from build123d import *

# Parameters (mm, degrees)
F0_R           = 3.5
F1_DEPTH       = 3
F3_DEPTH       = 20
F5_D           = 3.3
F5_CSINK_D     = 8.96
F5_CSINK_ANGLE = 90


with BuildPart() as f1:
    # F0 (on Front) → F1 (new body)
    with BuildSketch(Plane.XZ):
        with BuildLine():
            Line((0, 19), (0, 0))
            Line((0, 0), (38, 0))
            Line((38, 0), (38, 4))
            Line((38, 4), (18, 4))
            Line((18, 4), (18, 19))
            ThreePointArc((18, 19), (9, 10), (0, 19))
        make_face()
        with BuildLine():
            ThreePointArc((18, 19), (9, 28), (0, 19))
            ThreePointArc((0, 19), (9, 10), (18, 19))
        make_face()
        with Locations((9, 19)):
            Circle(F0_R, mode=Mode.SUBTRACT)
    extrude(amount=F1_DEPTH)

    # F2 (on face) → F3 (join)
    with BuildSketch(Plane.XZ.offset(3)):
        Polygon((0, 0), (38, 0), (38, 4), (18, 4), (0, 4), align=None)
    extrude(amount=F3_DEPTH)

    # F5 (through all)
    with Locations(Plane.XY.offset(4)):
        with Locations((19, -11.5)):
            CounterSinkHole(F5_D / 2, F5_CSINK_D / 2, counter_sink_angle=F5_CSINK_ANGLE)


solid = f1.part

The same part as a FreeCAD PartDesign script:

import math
import FreeCAD as App
import Part
import Sketcher

V = App.Vector

doc = App.newDocument("Part")
body = doc.addObject("PartDesign::Body", "Body")

sketch1 = body.newObject("Sketcher::SketchObject", "Sketch")
sketch1.AttachmentSupport = (doc.getObject("XZ_Plane"), [""])
sketch1.MapMode = "FlatFace"
sketch1.addGeometry(Part.LineSegment(V(0, 19, 0), V(0, 0, 0)), False)
sketch1.addGeometry(Part.LineSegment(V(0, 0, 0), V(38, 0, 0)), False)
sketch1.addGeometry(Part.LineSegment(V(38, 0, 0), V(38, 4, 0)), False)
sketch1.addGeometry(Part.LineSegment(V(38, 4, 0), V(18, 4, 0)), False)
sketch1.addGeometry(Part.LineSegment(V(18, 4, 0), V(18, 19, 0)), False)
sketch1.addGeometry(Part.ArcOfCircle(Part.Circle(V(9, 19, 0), V(0, 0, 1), 9), math.radians(0), math.radians(180)), False)
sketch1.addGeometry(Part.Circle(V(9, 19, 0), V(0, 0, 1), 3.5), False)
sketch1.addConstraint(Sketcher.Constraint("Coincident", 0, 2, 1, 1))
sketch1.addConstraint(Sketcher.Constraint("Coincident", 1, 2, 2, 1))
sketch1.addConstraint(Sketcher.Constraint("Coincident", 2, 2, 3, 1))
sketch1.addConstraint(Sketcher.Constraint("Coincident", 3, 2, 4, 1))
sketch1.addConstraint(Sketcher.Constraint("Tangent", 4, 2, 5, 1))
sketch1.addConstraint(Sketcher.Constraint("Tangent", 5, 2, 0, 1))
sketch1.addConstraint(Sketcher.Constraint("Vertical", 0))
sketch1.addConstraint(Sketcher.Constraint("Horizontal", 1))
sketch1.addConstraint(Sketcher.Constraint("Vertical", 2))
sketch1.addConstraint(Sketcher.Constraint("Horizontal", 3))
sketch1.addConstraint(Sketcher.Constraint("Vertical", 4))
sketch1.addConstraint(Sketcher.Constraint("Coincident", 0, 2, -1, 1))
sketch1.addConstraint(Sketcher.Constraint("Coincident", 6, 3, 5, 3))
sketch1.addConstraint(Sketcher.Constraint("Diameter", 6, 7.0))
sketch1.addConstraint(Sketcher.Constraint("Radius", 5, 9.0))
sketch1.addConstraint(Sketcher.Constraint("DistanceX", 1, 1, 1, 2, 38.0))
sketch1.addConstraint(Sketcher.Constraint("DistanceY", 0, 2, 0, 1, 19.0))
sketch1.addConstraint(Sketcher.Constraint("DistanceY", 2, 1, 2, 2, 4.0))
pad1 = body.newObject("PartDesign::Pad", "Pad")
pad1.Profile = sketch1
pad1.Length = 3

sketch2 = body.newObject("Sketcher::SketchObject", "Sketch001")
sketch2.AttachmentSupport = (doc.getObject("XZ_Plane"), [""])
sketch2.MapMode = "FlatFace"
sketch2.AttachmentOffset = App.Placement(V(0, 0, 3), App.Rotation())
sketch2.addGeometry(Part.LineSegment(V(0, 0, 0), V(38, 0, 0)), False)
sketch2.addGeometry(Part.LineSegment(V(38, 0, 0), V(38, 4, 0)), False)
sketch2.addGeometry(Part.LineSegment(V(38, 4, 0), V(0, 4, 0)), False)
sketch2.addGeometry(Part.LineSegment(V(0, 4, 0), V(0, 0, 0)), False)
sketch2.addConstraint(Sketcher.Constraint("Coincident", 0, 2, 1, 1))
sketch2.addConstraint(Sketcher.Constraint("Coincident", 1, 2, 2, 1))
sketch2.addConstraint(Sketcher.Constraint("Coincident", 2, 2, 3, 1))
sketch2.addConstraint(Sketcher.Constraint("Coincident", 3, 2, 0, 1))
sketch2.addConstraint(Sketcher.Constraint("Horizontal", 0))
sketch2.addConstraint(Sketcher.Constraint("Vertical", 1))
sketch2.addConstraint(Sketcher.Constraint("Horizontal", 2))
sketch2.addConstraint(Sketcher.Constraint("Vertical", 3))
sketch2.addConstraint(Sketcher.Constraint("Coincident", 3, 2, -1, 1))
sketch2.addConstraint(Sketcher.Constraint("DistanceX", 0, 1, 0, 2, 38.0))
sketch2.addConstraint(Sketcher.Constraint("DistanceY", 1, 1, 1, 2, 4.0))
pad2 = body.newObject("PartDesign::Pad", "Pad001")
pad2.Profile = sketch2
pad2.Length = 20

sketch3 = body.newObject("Sketcher::SketchObject", "Sketch002")
sketch3.AttachmentSupport = (doc.getObject("XY_Plane"), [""])
sketch3.MapMode = "FlatFace"
sketch3.AttachmentOffset = App.Placement(V(0, 0, 4), App.Rotation())
sketch3.addGeometry(Part.Circle(V(19, -11.5, 0), V(0, 0, 1), 1.6), False)
sketch3.addConstraint(Sketcher.Constraint("Diameter", 0, 3.3))
sketch3.addConstraint(Sketcher.Constraint("DistanceX", -1, 1, 0, 3, 19.0))
sketch3.addConstraint(Sketcher.Constraint("DistanceY", 0, 3, -1, 1, 11.5))
doc.recompute()
hole = body.newObject("PartDesign::Hole", "Hole")
hole.Profile = sketch3
hole.ThreadType = "None"
hole.Diameter = 3.3
hole.DepthType = "ThroughAll"
hole.HoleCutType = "Countersink"
hole.HoleCutDiameter = 8.96
hole.HoleCutCountersinkAngle = 90

doc.recompute()
